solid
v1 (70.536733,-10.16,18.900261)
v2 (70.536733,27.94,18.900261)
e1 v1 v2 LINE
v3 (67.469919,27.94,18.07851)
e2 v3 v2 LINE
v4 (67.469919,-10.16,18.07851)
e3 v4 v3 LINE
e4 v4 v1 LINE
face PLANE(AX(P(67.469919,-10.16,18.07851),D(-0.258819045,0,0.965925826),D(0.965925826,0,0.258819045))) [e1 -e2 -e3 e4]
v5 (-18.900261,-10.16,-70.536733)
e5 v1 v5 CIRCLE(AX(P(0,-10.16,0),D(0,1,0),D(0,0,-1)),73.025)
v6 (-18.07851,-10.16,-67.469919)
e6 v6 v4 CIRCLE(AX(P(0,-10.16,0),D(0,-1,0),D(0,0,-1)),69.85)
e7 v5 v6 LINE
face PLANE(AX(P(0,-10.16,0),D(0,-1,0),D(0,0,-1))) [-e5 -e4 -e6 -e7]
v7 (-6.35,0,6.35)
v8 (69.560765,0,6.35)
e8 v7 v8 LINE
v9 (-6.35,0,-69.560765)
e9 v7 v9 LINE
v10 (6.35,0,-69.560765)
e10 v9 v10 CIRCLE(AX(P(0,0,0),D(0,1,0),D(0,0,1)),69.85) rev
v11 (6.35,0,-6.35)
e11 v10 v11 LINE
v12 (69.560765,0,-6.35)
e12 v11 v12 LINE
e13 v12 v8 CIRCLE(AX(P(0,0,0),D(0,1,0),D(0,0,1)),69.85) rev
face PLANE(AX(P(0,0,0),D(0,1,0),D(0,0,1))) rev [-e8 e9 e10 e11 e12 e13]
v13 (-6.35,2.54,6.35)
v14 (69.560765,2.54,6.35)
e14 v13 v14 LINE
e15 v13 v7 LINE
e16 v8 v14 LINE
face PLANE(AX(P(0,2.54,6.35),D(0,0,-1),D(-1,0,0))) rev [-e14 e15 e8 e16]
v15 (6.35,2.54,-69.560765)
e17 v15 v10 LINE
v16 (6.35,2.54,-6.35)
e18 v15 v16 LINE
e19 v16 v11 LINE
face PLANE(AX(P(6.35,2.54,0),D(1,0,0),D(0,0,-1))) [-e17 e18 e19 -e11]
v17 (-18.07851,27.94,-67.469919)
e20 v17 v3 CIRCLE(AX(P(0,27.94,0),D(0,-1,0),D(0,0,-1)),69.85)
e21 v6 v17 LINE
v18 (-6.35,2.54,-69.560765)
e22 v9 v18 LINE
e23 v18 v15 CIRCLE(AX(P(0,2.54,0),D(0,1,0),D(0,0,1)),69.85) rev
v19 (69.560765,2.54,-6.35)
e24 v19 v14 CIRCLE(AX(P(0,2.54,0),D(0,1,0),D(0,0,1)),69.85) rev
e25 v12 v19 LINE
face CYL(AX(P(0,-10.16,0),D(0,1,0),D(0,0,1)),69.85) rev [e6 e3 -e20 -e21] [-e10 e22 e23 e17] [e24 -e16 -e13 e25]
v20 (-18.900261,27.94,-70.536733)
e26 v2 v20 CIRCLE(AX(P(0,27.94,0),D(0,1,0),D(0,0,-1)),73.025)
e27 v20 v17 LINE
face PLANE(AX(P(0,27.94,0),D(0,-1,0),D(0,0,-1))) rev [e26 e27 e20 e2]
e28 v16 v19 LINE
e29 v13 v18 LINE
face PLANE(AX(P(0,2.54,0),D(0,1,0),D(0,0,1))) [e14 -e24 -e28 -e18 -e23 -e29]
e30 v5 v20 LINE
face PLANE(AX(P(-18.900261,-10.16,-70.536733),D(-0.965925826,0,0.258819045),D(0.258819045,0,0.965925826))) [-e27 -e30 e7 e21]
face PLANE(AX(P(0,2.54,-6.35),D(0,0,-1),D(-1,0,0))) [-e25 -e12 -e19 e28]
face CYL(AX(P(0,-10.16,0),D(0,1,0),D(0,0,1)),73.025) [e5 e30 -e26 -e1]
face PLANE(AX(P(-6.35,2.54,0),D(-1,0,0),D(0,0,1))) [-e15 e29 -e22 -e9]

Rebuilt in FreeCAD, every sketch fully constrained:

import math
import FreeCAD as App
import Part
import Sketcher

V = App.Vector
Q = App.Units.Quantity


def add_polygon(sketch, points):
    """Adds a closed chain of lines whose ends are joined by coincident constraints."""
    first, n = sketch.GeometryCount, len(points)
    for a, b in zip(points, points[1:] + points[:1]):
        sketch.addGeometry(Part.LineSegment(App.Vector(*a, 0), App.Vector(*b, 0)), False)
    for i in range(n):
        sketch.addConstraint(Sketcher.Constraint("Coincident", first + i, 2, first + (i + 1) % n, 1))

doc = App.newDocument("Part")
params = doc.addObject("Spreadsheet::Sheet", "Params")
for row, (alias, value) in enumerate([
    ("sketch1_width", "3 in"),
    ("sketch1_width2", "0.5 in"),
    ("pad1_length", "0.1 in"),
    ("sketch2_radius", "2.75 in"),
    ("sketch2_radius2", "2.875 in"),
    ("pad2_length", "1 in"),
    ("pad2_length2", "0.5 in"),
], start=1):
    params.set(f"A{row}", alias)
    params.set(f"B{row}", "=" + value)
    params.setAlias(f"B{row}", alias)

body = doc.addObject("PartDesign::Body", "Body")

sketch1 = body.newObject("Sketcher::SketchObject", "Sketch")
sketch1.AttachmentSupport = (doc.getObject("XZ_Plane"), [""])
sketch1.MapMode = "FlatFace"
add_polygon(sketch1, [(6, -70), (-6, -70), (-6, 6), (70, 6), (70, -6), (6, -6)])
sketch1.addConstraint([
    Sketcher.Constraint("Horizontal", 0),
    Sketcher.Constraint("Vertical", 1),
    Sketcher.Constraint("Horizontal", 2),
    Sketcher.Constraint("Vertical", 3),
    Sketcher.Constraint("Horizontal", 4),
    Sketcher.Constraint("Vertical", 5),
    Sketcher.Constraint("Symmetric", 1, 2, 4, 2, -1, 1),
    Sketcher.Constraint("Equal", 2, 1),
    Sketcher.Constraint("Equal", 0, 3),
    Sketcher.Constraint("DistanceX", 2, 1, 2, 2, Q("3 in")),
    Sketcher.Constraint("DistanceX", 0, 2, 0, 1, Q("0.5 in")),
])
sketch1.setExpression("Constraints[15]", "Params.sketch1_width")
sketch1.setExpression("Constraints[16]", "Params.sketch1_width2")
pad1 = body.newObject("PartDesign::Pad", "Pad")
pad1.Profile = sketch1
pad1.setExpression("Length", "Params.pad1_length")
pad1.Reversed = True

sketch2 = body.newObject("Sketcher::SketchObject", "Sketch001")
sketch2.AttachmentSupport = (doc.getObject("XZ_Plane"), [""])
sketch2.MapMode = "FlatFace"
sketch2.AttachmentOffset = App.Placement(V(0, 0, -0.1 * 25.4), App.Rotation())
sketch2.addGeometry([
    Part.LineSegment(V(-18.9, -70.5, 0), V(-18.1, -67.5, 0)),
    Part.ArcOfCircle(Part.Circle(V(0, 0, 0), V(0, 0, 1), 69.8), math.radians(-105), math.radians(15)),
    Part.LineSegment(V(67.5, 18.1, 0), V(70.5, 18.9, 0)),
    Part.ArcOfCircle(Part.Circle(V(0, 0, 0), V(0, 0, 1), 73), math.radians(-105), math.radians(15)),
], False)
sketch2.addConstraint([
    Sketcher.Constraint("Coincident", 0, 2, 1, 1),
    Sketcher.Constraint("Coincident", 1, 2, 2, 1),
    Sketcher.Constraint("Coincident", 2, 2, 3, 2),
    Sketcher.Constraint("Coincident", 3, 1, 0, 1),
    Sketcher.Constraint("Coincident", 1, 3, -1, 1),
    Sketcher.Constraint("Coincident", 3, 3, -1, 1),
    Sketcher.Constraint("Radius", 1, Q("2.75 in")),
    Sketcher.Constraint("Angle", 0, Q("75 deg")),
    Sketcher.Constraint("Angle", 2, Q("15 deg")),
    Sketcher.Constraint("Radius", 3, Q("2.875 in")),
    Sketcher.Constraint("DistanceX", 0, 2, -1, 1, Q("18.07851 mm")),
    Sketcher.Constraint("DistanceX", -1, 1, 1, 2, Q("67.469919 mm")),
])
sketch2.setExpression("Constraints[6]", "Params.sketch2_radius")
sketch2.setExpression("Constraints[9]", "Params.sketch2_radius2")
pad2 = body.newObject("PartDesign::Pad", "Pad001")
pad2.Profile = sketch2
pad2.Type = "TwoLengths"
pad2.setExpression("Length", "Params.pad2_length")
pad2.setExpression("Length2", "Params.pad2_length2")
pad2.Reversed = True

doc.recompute()
